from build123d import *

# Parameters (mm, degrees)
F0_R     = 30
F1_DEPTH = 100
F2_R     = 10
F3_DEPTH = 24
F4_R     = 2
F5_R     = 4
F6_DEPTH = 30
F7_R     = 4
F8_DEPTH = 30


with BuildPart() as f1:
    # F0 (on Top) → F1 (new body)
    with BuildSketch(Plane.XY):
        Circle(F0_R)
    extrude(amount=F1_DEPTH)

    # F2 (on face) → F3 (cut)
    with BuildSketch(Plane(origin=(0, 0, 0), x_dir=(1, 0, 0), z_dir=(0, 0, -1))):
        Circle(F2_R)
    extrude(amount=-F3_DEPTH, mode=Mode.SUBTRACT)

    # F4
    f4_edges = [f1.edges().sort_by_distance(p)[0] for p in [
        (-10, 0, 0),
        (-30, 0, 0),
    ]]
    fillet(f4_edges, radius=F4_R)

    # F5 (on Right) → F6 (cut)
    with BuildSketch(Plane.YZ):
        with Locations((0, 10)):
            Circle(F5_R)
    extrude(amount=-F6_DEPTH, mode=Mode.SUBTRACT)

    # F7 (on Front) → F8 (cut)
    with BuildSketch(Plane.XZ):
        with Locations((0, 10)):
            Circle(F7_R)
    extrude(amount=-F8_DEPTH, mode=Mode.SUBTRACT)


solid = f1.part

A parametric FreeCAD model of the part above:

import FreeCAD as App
import Part
import Sketcher
from FreeCAD import Vector


def edges_at(feature, points):
    """Names of the edges that pass closest to the given points."""
    edges = feature.Shape.Edges
    near = lambda p: min(range(len(edges)), key=lambda i: edges[i].distToShape(Part.Vertex(*p))[0])
    return sorted({f"Edge{near(p) + 1}" for p in points})

doc = App.newDocument("Part")
body = doc.addObject("PartDesign::Body", "Body")

# Sketch on XY plane
sketch1 = doc.addObject("Sketcher::SketchObject", "Sketch")
body.addObject(sketch1)
sketch1.AttachmentSupport = (doc.XY_Plane, [""])
sketch1.MapMode = "FlatFace"
sketch1.addGeometry(Part.Circle(Vector(0, 0, 0), Vector(0, 0, 1), 30), False)
sketch1.addConstraint(Sketcher.Constraint("Coincident", 0, 3, -1, 1))
sketch1.addConstraint(Sketcher.Constraint("Diameter", 0, 60.0))
pad1 = doc.addObject("PartDesign::Pad", "Pad")
body.addObject(pad1)
pad1.Profile = sketch1
pad1.Length = 100

# Sketch on XY plane
sketch2 = doc.addObject("Sketcher::SketchObject", "Sketch001")
body.addObject(sketch2)
sketch2.AttachmentSupport = (doc.XY_Plane, [""])
sketch2.MapMode = "FlatFace"
sketch2.addGeometry(Part.Circle(Vector(0, 0, 0), Vector(0, 0, 1), 10), False)
sketch2.addConstraint(Sketcher.Constraint("Coincident", 0, 3, -1, 1))
sketch2.addConstraint(Sketcher.Constraint("Diameter", 0, 20.0))
pocket1 = doc.addObject("PartDesign::Pocket", "Pocket")
body.addObject(pocket1)
pocket1.Profile = sketch2
pocket1.Length = 24
pocket1.Reversed = True
doc.recompute()

fillet = doc.addObject("PartDesign::Fillet", "Fillet")
body.addObject(fillet)
fillet.Base = (pocket1, edges_at(pocket1, [(-10, 0, 0), (-30, 0, 0)]))
fillet.Radius = 2

# Sketch on YZ plane
sketch3 = doc.addObject("Sketcher::SketchObject", "Sketch002")
body.addObject(sketch3)
sketch3.AttachmentSupport = (doc.YZ_Plane, [""])
sketch3.MapMode = "FlatFace"
sketch3.addGeometry(Part.Circle(Vector(0, 10, 0), Vector(0, 0, 1), 4), False)
sketch3.addConstraint(Sketcher.Constraint("PointOnObject", 0, 3, -2))
sketch3.addConstraint(Sketcher.Constraint("Diameter", 0, 8.0))
sketch3.addConstraint(Sketcher.Constraint("DistanceY", -1, 1, 0, 3, 10.0))
pocket2 = doc.addObject("PartDesign::Pocket", "Pocket001")
body.addObject(pocket2)
pocket2.Profile = sketch3
pocket2.Length = 30

# Sketch on XZ plane
sketch4 = doc.addObject("Sketcher::SketchObject", "Sketch003")
body.addObject(sketch4)
sketch4.AttachmentSupport = (doc.XZ_Plane, [""])
sketch4.MapMode = "FlatFace"
sketch4.addGeometry(Part.Circle(Vector(0, 10, 0), Vector(0, 0, 1), 4), False)
sketch4.addConstraint(Sketcher.Constraint("PointOnObject", 0, 3, -2))
sketch4.addConstraint(Sketcher.Constraint("Diameter", 0, 8.0))
sketch4.addConstraint(Sketcher.Constraint("DistanceY", -1, 1, 0, 3, 10.0))
pocket3 = doc.addObject("PartDesign::Pocket", "Pocket002")
body.addObject(pocket3)
pocket3.Profile = sketch4
pocket3.Length = 30

doc.recompute()
